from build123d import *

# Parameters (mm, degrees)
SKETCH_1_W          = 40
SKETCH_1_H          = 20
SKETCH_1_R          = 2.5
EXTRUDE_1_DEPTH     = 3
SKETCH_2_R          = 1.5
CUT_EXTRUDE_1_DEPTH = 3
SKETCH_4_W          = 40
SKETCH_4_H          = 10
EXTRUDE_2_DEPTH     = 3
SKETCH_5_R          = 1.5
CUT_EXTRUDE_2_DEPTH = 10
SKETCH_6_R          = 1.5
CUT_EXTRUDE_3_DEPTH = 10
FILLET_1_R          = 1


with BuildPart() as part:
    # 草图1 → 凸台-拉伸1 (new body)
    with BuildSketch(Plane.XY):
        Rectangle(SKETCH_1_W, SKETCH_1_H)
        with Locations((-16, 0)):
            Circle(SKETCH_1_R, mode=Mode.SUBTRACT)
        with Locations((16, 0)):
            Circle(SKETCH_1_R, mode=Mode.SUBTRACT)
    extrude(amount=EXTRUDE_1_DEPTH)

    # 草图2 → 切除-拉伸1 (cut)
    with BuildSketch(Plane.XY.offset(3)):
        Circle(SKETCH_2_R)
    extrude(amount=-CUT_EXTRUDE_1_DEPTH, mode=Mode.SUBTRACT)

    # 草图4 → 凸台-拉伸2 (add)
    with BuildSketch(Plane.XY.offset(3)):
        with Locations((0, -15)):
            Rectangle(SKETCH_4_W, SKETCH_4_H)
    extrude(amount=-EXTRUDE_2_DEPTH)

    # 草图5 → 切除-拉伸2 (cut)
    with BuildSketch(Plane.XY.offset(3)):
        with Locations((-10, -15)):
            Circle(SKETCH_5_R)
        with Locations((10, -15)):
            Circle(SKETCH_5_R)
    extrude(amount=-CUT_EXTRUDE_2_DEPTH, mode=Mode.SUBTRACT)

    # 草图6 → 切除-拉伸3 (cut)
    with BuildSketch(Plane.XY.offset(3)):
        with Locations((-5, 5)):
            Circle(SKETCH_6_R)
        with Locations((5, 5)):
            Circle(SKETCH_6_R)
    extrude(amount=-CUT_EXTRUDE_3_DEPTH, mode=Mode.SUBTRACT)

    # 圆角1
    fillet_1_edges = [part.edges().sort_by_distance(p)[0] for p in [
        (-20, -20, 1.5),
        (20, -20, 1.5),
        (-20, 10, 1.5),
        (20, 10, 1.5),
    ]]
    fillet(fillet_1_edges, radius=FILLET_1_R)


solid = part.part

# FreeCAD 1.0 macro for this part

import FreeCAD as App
import Part
import Sketcher
from FreeCAD import Vector
Q = App.Units.Quantity


def edges_at(feature, points):
    """Names of the edges that pass closest to the given points."""
    edges = feature.Shape.Edges
    near = lambda p: min(range(len(edges)), key=lambda i: edges[i].distToShape(Part.Vertex(*p))[0])
    return sorted({f"Edge{near(p) + 1}" for p in points})

doc = App.newDocument("Part")
body = doc.addObject("PartDesign::Body", "Body")

# Sketch on XY plane
sketch1 = body.newObject("Sketcher::SketchObject", "Sketch")
sketch1.AttachmentSupport = (doc.getObject("XY_Plane"), [""])
sketch1.MapMode = "FlatFace"
sketch1.addGeometry([
    Part.LineSegment(Vector(-20, 10, 0), Vector(-20, -10, 0)),  # 0
    Part.LineSegment(Vector(-20, -10, 0), Vector(20, -10, 0)),  # 1
    Part.LineSegment(Vector(20, -10, 0), Vector(20, 10, 0)),  # 2
    Part.LineSegment(Vector(20, 10, 0), Vector(-20, 10, 0)),  # 3
    Part.Circle(Vector(-16, 0, 0), Vector(0, 0, 1), 2.5),  # 4
    Part.Circle(Vector(16, 0, 0), Vector(0, 0, 1), 2.5),  # 5
], False)
sketch1.addConstraint([
    Sketcher.Constraint("Coincident", 0, 2, 1, 1),
    Sketcher.Constraint("Coincident", 1, 2, 2, 1),
    Sketcher.Constraint("Coincident", 2, 2, 3, 1),
    Sketcher.Constraint("Coincident", 3, 2, 0, 1),
    Sketcher.Constraint("Vertical", 0),
    Sketcher.Constraint("Horizontal", 1),
    Sketcher.Constraint("Vertical", 2),
    Sketcher.Constraint("Horizontal", 3),
    Sketcher.Constraint("Equal", 4, 5),
    Sketcher.Constraint("Symmetric", 4, 3, 5, 3, -1, 1),
    Sketcher.Constraint("Symmetric", 0, 2, 2, 2, -1, 1),
    Sketcher.Constraint("PointOnObject", 4, 3, -1),
    Sketcher.Constraint("Diameter", 4, Q("5 mm")),
    Sketcher.Constraint("DistanceX", 1, 1, 1, 2, Q("40 mm")),
    Sketcher.Constraint("DistanceY", 0, 2, 0, 1, Q("20 mm")),
    Sketcher.Constraint("DistanceX", 4, 3, -1, 1, Q("16 mm")),
])
pad1 = body.newObject("PartDesign::Pad", "Pad")
pad1.Profile = sketch1
pad1.Length = 3

# Sketch on XY plane
sketch2 = body.newObject("Sketcher::SketchObject", "Sketch001")
sketch2.AttachmentSupport = (doc.getObject("XY_Plane"), [""])
sketch2.MapMode = "FlatFace"
sketch2.AttachmentOffset = App.Placement(Vector(0, 0, 3), App.Rotation())
sketch2.addGeometry(Part.Circle(Vector(0, 0, 0), Vector(0, 0, 1), 1.5), False)
sketch2.addConstraint([
    Sketcher.Constraint("Coincident", 0, 3, -1, 1),
    Sketcher.Constraint("Diameter", 0, Q("3 mm")),
])
pocket1 = body.newObject("PartDesign::Pocket", "Pocket")
pocket1.Profile = sketch2
pocket1.Length = 3

# Sketch on XY plane
sketch3 = body.newObject("Sketcher::SketchObject", "Sketch002")
sketch3.AttachmentSupport = (doc.getObject("XY_Plane"), [""])
sketch3.MapMode = "FlatFace"
sketch3.AttachmentOffset = App.Placement(Vector(0, 0, 3), App.Rotation())
sketch3.addGeometry([
    Part.LineSegment(Vector(-20, -10, 0), Vector(-20, -20, 0)),
    Part.LineSegment(Vector(-20, -20, 0), Vector(20, -20, 0)),
    Part.LineSegment(Vector(20, -20, 0), Vector(20, -10, 0)),
    Part.LineSegment(Vector(20, -10, 0), Vector(-20, -10, 0)),
], False)
sketch3.addConstraint([
    Sketcher.Constraint("Coincident", 0, 2, 1, 1),
    Sketcher.Constraint("Coincident", 1, 2, 2, 1),
    Sketcher.Constraint("Coincident", 2, 2, 3, 1),
    Sketcher.Constraint("Coincident", 3, 2, 0, 1),
    Sketcher.Constraint("Vertical", 0),
    Sketcher.Constraint("Horizontal", 1),
    Sketcher.Constraint("Vertical", 2),
    Sketcher.Constraint("Horizontal", 3),
    Sketcher.Constraint("DistanceX", 1, 1, 1, 2, Q("40 mm")),
    Sketcher.Constraint("DistanceY", 0, 2, 0, 1, Q("10 mm")),
    Sketcher.Constraint("DistanceX", 0, 2, -1, 1, Q("20 mm")),
    Sketcher.Constraint("DistanceY", 0, 2, -1, 1, Q("20 mm")),
])
pad2 = body.newObject("PartDesign::Pad", "Pad001")
pad2.Profile = sketch3
pad2.Length = 3
pad2.Reversed = True

# Sketch on XY plane
sketch4 = body.newObject("Sketcher::SketchObject", "Sketch003")
sketch4.AttachmentSupport = (doc.getObject("XY_Plane"), [""])
sketch4.MapMode = "FlatFace"
sketch4.AttachmentOffset = App.Placement(Vector(0, 0, 3), App.Rotation())
sketch4.addGeometry([
    Part.Circle(Vector(-10, -15, 0), Vector(0, 0, 1), 1.5),
    Part.Circle(Vector(10, -15, 0), Vector(0, 0, 1), 1.5),
], False)
sketch4.addConstraint([
    Sketcher.Constraint("Equal", 0, 1),
    Sketcher.Constraint("Symmetric", 0, 3, 1, 3, -2),
    Sketcher.Constraint("Diameter", 0, Q("3 mm")),
    Sketcher.Constraint("DistanceX", 0, 3, -1, 1, Q("10 mm")),
    Sketcher.Constraint("DistanceY", 0, 3, -1, 1, Q("15 mm")),
])
pocket2 = body.newObject("PartDesign::Pocket", "Pocket001")
pocket2.Profile = sketch4
pocket2.Length = 10

# Sketch on XY plane
sketch5 = body.newObject("Sketcher::SketchObject", "Sketch004")
sketch5.AttachmentSupport = (doc.getObject("XY_Plane"), [""])
sketch5.MapMode = "FlatFace"
sketch5.AttachmentOffset = App.Placement(Vector(0, 0, 3), App.Rotation())
sketch5.addGeometry([
    Part.Circle(Vector(-5, 5, 0), Vector(0, 0, 1), 1.5),
    Part.Circle(Vector(5, 5, 0), Vector(0, 0, 1), 1.5),
], False)
sketch5.addConstraint([
    Sketcher.Constraint("Equal", 0, 1),
    Sketcher.Constraint("Symmetric", 0, 3, 1, 3, -2),
    Sketcher.Constraint("Diameter", 0, Q("3 mm")),
    Sketcher.Constraint("DistanceX", 0, 3, -1, 1, Q("5 mm")),
    Sketcher.Constraint("DistanceY", -1, 1, 0, 3, Q("5 mm")),
])
pocket3 = body.newObject("PartDesign::Pocket", "Pocket002")
pocket3.Profile = sketch5
pocket3.Length = 10
doc.recompute()

fillet = body.newObject("PartDesign::Fillet", "Fillet")
fillet.Base = (pocket3, edges_at(pocket3, [
    (-20, -20, 1.5),
    (20, -20, 1.5),
    (-20, 10, 1.5),
    (20, 10, 1.5),
]))
fillet.Radius = 1

doc.recompute()
